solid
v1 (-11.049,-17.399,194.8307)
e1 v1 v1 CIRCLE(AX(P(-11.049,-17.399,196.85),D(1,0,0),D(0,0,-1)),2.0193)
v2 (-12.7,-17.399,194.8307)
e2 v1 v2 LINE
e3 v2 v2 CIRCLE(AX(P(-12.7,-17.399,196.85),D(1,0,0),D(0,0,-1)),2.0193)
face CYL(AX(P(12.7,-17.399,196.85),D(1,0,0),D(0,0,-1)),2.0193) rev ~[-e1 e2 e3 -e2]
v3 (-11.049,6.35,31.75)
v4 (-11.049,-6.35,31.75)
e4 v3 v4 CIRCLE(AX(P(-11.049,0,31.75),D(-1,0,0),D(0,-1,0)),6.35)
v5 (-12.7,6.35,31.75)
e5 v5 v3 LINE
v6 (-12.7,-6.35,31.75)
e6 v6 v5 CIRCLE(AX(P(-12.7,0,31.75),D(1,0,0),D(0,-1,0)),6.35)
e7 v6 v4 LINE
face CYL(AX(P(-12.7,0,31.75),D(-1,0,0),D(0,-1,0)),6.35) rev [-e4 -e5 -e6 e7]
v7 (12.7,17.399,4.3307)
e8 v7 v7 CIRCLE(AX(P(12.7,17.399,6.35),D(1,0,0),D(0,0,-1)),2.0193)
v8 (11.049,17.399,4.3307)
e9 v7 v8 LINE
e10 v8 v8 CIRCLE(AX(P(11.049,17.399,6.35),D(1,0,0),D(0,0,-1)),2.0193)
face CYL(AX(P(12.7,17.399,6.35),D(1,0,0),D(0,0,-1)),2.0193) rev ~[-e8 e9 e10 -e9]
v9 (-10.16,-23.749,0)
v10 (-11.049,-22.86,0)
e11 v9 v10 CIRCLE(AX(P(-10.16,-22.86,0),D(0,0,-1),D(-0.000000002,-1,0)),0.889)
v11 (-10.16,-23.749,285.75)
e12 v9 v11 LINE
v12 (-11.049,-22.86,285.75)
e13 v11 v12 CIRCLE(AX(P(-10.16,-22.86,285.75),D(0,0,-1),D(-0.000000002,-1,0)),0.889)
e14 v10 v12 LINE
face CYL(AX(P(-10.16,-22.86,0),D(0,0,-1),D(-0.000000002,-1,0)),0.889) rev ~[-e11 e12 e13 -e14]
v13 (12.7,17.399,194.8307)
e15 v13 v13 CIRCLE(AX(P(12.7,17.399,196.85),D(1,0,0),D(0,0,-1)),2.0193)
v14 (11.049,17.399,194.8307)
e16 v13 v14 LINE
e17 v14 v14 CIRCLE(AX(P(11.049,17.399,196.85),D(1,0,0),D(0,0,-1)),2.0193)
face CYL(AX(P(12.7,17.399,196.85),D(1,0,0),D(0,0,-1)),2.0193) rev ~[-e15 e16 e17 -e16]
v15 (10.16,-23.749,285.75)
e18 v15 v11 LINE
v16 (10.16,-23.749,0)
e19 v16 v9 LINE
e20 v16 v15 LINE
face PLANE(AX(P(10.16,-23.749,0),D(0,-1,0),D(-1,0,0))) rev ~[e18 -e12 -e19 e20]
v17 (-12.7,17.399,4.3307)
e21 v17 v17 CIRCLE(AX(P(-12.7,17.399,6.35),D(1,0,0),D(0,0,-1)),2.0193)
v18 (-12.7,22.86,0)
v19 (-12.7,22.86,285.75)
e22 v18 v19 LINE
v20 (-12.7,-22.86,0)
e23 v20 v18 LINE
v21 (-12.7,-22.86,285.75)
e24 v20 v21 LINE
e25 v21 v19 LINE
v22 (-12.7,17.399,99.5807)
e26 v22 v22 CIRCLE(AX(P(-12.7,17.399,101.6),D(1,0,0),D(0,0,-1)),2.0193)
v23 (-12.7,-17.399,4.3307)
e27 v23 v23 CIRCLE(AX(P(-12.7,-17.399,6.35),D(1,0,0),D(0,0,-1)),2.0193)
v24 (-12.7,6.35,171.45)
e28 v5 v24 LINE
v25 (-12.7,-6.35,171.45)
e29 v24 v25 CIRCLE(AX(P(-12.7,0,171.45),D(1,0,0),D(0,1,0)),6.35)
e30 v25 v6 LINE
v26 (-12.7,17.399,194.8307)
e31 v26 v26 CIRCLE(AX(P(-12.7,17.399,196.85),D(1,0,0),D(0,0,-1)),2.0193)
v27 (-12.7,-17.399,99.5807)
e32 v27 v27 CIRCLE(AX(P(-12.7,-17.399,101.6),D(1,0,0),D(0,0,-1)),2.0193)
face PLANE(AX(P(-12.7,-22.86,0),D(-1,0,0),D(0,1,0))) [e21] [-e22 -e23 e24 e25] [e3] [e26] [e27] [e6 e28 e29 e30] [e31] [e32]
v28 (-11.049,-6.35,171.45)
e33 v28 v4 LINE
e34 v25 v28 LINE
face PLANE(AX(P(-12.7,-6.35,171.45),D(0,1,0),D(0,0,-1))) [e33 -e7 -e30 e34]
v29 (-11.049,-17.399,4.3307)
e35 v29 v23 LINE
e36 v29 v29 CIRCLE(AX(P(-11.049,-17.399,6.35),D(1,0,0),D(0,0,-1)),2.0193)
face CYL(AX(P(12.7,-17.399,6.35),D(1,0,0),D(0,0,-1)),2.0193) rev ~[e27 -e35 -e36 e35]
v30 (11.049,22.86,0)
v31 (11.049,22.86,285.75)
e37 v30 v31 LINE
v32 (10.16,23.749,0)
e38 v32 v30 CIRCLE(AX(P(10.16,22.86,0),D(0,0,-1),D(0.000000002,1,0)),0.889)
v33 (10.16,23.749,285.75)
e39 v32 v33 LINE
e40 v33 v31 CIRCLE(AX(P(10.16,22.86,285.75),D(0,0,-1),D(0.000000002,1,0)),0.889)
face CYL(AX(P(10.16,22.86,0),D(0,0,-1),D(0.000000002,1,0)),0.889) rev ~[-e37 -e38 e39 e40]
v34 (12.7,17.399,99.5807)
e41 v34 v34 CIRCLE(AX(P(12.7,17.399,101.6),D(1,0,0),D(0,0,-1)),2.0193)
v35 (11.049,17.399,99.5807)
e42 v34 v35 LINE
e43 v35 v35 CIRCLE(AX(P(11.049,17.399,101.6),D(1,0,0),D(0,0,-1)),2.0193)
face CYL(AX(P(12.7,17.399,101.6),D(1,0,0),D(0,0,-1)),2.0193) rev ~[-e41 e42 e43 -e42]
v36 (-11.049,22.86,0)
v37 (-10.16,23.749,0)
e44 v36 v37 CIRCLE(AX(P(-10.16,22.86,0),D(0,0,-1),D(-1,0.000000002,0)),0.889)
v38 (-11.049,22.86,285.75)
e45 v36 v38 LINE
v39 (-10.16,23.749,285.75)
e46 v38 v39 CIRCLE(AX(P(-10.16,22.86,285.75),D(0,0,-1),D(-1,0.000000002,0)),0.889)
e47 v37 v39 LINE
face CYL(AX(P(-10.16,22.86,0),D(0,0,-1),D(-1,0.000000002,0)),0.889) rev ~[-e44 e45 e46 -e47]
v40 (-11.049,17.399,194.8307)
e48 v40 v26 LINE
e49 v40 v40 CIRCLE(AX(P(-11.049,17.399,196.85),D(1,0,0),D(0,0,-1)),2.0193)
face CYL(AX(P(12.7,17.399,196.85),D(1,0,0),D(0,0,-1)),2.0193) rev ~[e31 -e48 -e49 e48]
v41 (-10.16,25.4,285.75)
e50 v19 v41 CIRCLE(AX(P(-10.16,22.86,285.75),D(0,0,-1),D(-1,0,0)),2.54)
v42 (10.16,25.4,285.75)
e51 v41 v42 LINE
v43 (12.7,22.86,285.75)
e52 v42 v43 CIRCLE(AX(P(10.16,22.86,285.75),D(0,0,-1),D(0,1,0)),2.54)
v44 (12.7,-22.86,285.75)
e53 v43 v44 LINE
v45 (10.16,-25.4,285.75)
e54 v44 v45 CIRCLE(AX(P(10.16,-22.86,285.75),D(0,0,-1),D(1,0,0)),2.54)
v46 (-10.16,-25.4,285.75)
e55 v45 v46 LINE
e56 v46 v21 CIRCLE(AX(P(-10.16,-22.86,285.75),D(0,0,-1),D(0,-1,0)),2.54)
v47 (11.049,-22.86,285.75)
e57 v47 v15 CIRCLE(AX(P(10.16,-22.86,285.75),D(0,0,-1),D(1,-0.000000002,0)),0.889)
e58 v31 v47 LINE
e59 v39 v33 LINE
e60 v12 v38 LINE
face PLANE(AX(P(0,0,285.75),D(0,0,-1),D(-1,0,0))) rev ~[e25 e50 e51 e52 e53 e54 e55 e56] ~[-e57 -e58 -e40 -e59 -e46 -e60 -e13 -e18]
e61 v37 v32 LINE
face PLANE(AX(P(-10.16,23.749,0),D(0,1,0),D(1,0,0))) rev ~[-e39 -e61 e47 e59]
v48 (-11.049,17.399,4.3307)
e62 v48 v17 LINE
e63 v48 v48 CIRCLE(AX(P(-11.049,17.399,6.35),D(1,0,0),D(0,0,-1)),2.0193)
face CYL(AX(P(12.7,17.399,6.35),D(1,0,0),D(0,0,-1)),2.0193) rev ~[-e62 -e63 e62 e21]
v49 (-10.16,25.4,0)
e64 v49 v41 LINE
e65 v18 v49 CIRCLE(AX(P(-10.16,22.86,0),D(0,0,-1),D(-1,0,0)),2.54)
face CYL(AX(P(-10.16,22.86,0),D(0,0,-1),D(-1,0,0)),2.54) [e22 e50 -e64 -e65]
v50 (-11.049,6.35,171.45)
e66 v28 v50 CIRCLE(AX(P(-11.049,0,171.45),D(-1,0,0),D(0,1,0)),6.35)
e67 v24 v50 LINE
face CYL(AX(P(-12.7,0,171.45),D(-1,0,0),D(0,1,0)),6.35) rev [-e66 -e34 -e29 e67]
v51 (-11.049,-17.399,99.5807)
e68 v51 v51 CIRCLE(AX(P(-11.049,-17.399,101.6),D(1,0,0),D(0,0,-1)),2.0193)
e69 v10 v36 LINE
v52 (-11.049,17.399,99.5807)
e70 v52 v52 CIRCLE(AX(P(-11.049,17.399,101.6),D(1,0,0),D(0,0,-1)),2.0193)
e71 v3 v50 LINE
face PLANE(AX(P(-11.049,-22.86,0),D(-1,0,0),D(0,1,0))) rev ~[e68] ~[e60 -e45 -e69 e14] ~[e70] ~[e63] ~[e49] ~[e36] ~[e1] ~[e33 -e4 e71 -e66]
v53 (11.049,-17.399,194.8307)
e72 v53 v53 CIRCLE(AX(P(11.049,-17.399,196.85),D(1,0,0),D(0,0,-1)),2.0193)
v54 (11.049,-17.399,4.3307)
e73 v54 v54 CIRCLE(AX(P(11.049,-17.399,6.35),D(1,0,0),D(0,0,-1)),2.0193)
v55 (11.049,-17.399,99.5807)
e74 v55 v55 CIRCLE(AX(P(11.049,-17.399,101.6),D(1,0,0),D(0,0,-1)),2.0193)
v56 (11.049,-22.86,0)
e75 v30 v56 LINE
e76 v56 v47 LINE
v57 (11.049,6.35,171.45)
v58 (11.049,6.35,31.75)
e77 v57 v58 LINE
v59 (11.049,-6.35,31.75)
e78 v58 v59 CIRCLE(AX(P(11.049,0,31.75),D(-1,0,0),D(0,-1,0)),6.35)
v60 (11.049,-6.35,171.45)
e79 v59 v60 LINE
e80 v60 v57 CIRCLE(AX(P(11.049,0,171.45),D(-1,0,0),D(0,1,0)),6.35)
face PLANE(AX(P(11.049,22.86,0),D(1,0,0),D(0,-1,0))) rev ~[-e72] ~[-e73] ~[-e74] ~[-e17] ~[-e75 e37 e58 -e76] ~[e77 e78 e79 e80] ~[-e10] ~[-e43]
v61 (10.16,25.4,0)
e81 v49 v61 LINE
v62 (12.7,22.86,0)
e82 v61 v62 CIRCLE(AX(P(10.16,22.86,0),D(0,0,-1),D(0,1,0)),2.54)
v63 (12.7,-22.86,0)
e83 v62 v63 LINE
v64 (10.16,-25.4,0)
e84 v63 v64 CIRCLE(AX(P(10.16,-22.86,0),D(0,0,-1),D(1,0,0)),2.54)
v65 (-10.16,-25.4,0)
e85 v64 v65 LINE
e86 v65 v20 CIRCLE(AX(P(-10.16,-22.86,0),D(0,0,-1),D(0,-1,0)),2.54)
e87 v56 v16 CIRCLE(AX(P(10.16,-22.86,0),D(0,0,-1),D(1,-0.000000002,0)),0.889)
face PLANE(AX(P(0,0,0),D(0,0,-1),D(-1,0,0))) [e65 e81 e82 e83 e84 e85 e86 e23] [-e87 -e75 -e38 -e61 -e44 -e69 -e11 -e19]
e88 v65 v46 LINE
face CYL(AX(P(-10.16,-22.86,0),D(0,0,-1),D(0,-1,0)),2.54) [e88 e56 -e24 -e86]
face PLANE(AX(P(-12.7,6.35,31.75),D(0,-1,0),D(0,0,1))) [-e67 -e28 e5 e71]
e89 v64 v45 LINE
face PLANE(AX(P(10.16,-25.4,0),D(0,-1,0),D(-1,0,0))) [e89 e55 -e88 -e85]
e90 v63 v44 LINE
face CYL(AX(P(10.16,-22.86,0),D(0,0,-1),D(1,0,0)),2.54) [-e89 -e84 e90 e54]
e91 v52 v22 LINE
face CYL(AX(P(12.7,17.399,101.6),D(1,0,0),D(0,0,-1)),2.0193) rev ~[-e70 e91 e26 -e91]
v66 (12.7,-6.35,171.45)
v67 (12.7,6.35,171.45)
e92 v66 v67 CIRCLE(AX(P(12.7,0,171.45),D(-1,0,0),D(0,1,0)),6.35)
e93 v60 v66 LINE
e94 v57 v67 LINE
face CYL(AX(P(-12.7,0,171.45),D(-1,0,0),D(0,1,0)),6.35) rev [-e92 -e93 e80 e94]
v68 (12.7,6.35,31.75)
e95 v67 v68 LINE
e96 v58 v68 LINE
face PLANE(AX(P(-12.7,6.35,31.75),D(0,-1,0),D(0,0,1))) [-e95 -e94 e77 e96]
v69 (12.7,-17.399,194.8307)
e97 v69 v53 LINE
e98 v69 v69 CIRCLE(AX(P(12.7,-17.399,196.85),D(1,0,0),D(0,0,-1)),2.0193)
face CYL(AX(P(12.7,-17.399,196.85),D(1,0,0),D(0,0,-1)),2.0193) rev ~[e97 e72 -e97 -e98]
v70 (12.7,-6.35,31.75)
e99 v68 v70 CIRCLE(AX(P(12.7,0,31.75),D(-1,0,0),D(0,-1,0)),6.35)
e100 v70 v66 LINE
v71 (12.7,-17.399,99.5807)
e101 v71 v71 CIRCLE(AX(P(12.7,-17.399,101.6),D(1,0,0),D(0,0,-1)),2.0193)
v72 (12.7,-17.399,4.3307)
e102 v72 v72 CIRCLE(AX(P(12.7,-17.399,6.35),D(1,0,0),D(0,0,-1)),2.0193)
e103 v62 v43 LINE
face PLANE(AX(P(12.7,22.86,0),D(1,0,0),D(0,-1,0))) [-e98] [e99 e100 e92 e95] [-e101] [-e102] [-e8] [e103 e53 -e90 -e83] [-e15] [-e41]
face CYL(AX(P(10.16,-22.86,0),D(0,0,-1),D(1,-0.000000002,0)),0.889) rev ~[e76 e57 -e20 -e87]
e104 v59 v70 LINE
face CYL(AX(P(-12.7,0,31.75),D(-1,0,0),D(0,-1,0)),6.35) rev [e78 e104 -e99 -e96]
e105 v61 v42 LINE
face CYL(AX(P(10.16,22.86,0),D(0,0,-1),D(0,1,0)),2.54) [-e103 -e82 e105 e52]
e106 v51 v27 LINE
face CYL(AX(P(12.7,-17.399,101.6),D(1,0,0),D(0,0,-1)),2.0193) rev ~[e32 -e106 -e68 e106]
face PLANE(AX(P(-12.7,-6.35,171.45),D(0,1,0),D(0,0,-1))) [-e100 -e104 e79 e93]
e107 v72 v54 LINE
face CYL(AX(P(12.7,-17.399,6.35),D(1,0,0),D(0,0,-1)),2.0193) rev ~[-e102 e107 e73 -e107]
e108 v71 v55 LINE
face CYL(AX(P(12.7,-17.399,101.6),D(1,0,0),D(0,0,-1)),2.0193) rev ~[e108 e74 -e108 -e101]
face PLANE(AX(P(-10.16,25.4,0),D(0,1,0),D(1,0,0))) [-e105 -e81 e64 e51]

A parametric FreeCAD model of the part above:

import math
import FreeCAD as App
import Part
import Sketcher

V = App.Vector
Q = App.Units.Quantity

doc = App.newDocument("Part")
body = doc.addObject("PartDesign::Body", "Body")

# Sketch on XY plane
sketch1 = body.newObject("Sketcher::SketchObject", "Sketch")
sketch1.AttachmentSupport = (doc.getObject("XY_Plane"), [""])
sketch1.MapMode = "FlatFace"
sketch1.addGeometry([
    Part.LineSegment(V(10.2, 25.4, 0), V(-10.2, 25.4, 0)),  # 0
    Part.ArcOfCircle(Part.Circle(V(-10.2, 22.9, 0), V(0, 0, 1), 2.5), math.radians(90), math.radians(180)),  # 1
    Part.LineSegment(V(-12.7, 22.9, 0), V(-12.7, -22.9, 0)),  # 2
    Part.ArcOfCircle(Part.Circle(V(-10.2, -22.9, 0), V(0, 0, 1), 2.5), math.radians(-180), math.radians(-90)),  # 3
    Part.LineSegment(V(-10.2, -25.4, 0), V(10.2, -25.4, 0)),  # 4
    Part.ArcOfCircle(Part.Circle(V(10.2, -22.9, 0), V(0, 0, 1), 2.5), math.radians(-90), math.radians(0)),  # 5
    Part.LineSegment(V(12.7, -22.9, 0), V(12.7, 22.9, 0)),  # 6
    Part.ArcOfCircle(Part.Circle(V(10.2, 22.9, 0), V(0, 0, 1), 2.5), math.radians(0), math.radians(90)),  # 7
    Part.LineSegment(V(-10.2, 23.7, 0), V(10.2, 23.7, 0)),  # 8
    Part.ArcOfCircle(Part.Circle(V(10.2, 22.9, 0), V(0, 0, 1), 0.9), math.radians(0), math.radians(90)),  # 9
    Part.LineSegment(V(11, 22.9, 0), V(11, -22.9, 0)),  # 10
    Part.ArcOfCircle(Part.Circle(V(10.2, -22.9, 0), V(0, 0, 1), 0.9), math.radians(-90), math.radians(0)),  # 11
    Part.LineSegment(V(10.2, -23.7, 0), V(-10.2, -23.7, 0)),  # 12
    Part.ArcOfCircle(Part.Circle(V(-10.2, -22.9, 0), V(0, 0, 1), 0.9), math.radians(-180), math.radians(-90)),  # 13
    Part.LineSegment(V(-11, -22.9, 0), V(-11, 22.9, 0)),  # 14
    Part.ArcOfCircle(Part.Circle(V(-10.2, 22.9, 0), V(0, 0, 1), 0.9), math.radians(90), math.radians(180)),  # 15
], False)
sketch1.addConstraint([
    Sketcher.Constraint("Tangent", 0, 2, 1, 1),
    Sketcher.Constraint("Tangent", 1, 2, 2, 1),
    Sketcher.Constraint("Tangent", 2, 2, 3, 1),
    Sketcher.Constraint("Tangent", 3, 2, 4, 1),
    Sketcher.Constraint("Tangent", 4, 2, 5, 1),
    Sketcher.Constraint("Tangent", 5, 2, 6, 1),
    Sketcher.Constraint("Tangent", 6, 2, 7, 1),
    Sketcher.Constraint("Tangent", 7, 2, 0, 1),
    Sketcher.Constraint("Tangent", 8, 2, 9, 2),
    Sketcher.Constraint("Tangent", 9, 1, 10, 1),
    Sketcher.Constraint("Tangent", 10, 2, 11, 2),
    Sketcher.Constraint("Tangent", 11, 1, 12, 1),
    Sketcher.Constraint("Tangent", 12, 2, 13, 2),
    Sketcher.Constraint("Tangent", 13, 1, 14, 1),
    Sketcher.Constraint("Tangent", 14, 2, 15, 2),
    Sketcher.Constraint("Tangent", 15, 1, 8, 1),
    Sketcher.Constraint("Horizontal", 0),
    Sketcher.Constraint("Vertical", 2),
    Sketcher.Constraint("Horizontal", 4),
    Sketcher.Constraint("Vertical", 6),
    Sketcher.Constraint("Horizontal", 8),
    Sketcher.Constraint("Vertical", 10),
    Sketcher.Constraint("Horizontal", 12),
    Sketcher.Constraint("Vertical", 14),
    Sketcher.Constraint("Coincident", 9, 3, 7, 3),
    Sketcher.Constraint("Coincident", 11, 3, 5, 3),
    Sketcher.Constraint("Coincident", 13, 3, 3, 3),
    Sketcher.Constraint("Equal", 1, 3),
    Sketcher.Constraint("Equal", 3, 5),
    Sketcher.Constraint("Equal", 5, 7),
    Sketcher.Constraint("Equal", 13, 15),
    Sketcher.Constraint("Symmetric", 1, 3, 5, 3, -1, 1),
    Sketcher.Constraint("Radius", 1, Q("0.1 in")),
    Sketcher.Constraint("DistanceX", 0, 2, 0, 1, Q("0.8 in")),
    Sketcher.Constraint("DistanceY", 2, 2, 2, 1, Q("1.8 in")),
    Sketcher.Constraint("Radius", 9, Q("0.035 in")),
])
pad1 = body.newObject("PartDesign::Pad", "Pad")
pad1.Profile = sketch1
pad1.Length = Q("11.25 in")

# Sketch on YZ plane
sketch2 = body.newObject("Sketcher::SketchObject", "Sketch001")
sketch2.AttachmentSupport = (doc.getObject("YZ_Plane"), [""])
sketch2.MapMode = "FlatFace"
sketch2.AttachmentOffset = App.Placement(V(0, 0, -0.5 * 25.4), App.Rotation())
sketch2.addGeometry([
    Part.LineSegment(V(6, 171, 0), V(6, 32, 0)),
    Part.ArcOfCircle(Part.Circle(V(0, 32, 0), V(0, 0, 1), 6), math.radians(180), math.radians(360)),
    Part.LineSegment(V(-6, 32, 0), V(-6, 171, 0)),
    Part.ArcOfCircle(Part.Circle(V(0, 171, 0), V(0, 0, 1), 6), math.radians(0), math.radians(180)),
], False)
sketch2.addConstraint([
    Sketcher.Constraint("Tangent", 0, 2, 1, 2),
    Sketcher.Constraint("Tangent", 1, 1, 2, 1),
    Sketcher.Constraint("Tangent", 2, 2, 3, 2),
    Sketcher.Constraint("Tangent", 3, 1, 0, 1),
    Sketcher.Constraint("Vertical", 0),
    Sketcher.Constraint("Vertical", 2),
    Sketcher.Constraint("PointOnObject", 1, 3, -2),
    Sketcher.Constraint("Radius", 1, Q("0.25 in")),
    Sketcher.Constraint("DistanceY", 0, 2, 0, 1, Q("5.5 in")),
    Sketcher.Constraint("DistanceY", -1, 1, 1, 3, Q("1.25 in")),
])
pocket1 = body.newObject("PartDesign::Pocket", "Pocket")
pocket1.Profile = sketch2
pocket1.Type = "ThroughAll"
pocket1.Reversed = True

# Sketch on YZ plane
sketch3 = body.newObject("Sketcher::SketchObject", "Sketch002")
sketch3.AttachmentSupport = (doc.getObject("YZ_Plane"), [""])
sketch3.MapMode = "FlatFace"
sketch3.AttachmentOffset = App.Placement(V(0, 0, 0.5 * 25.4), App.Rotation())
sketch3.addGeometry([
    Part.Circle(V(17.4, 196.8, 0), V(0, 0, 1), 2),  # 0
    Part.Circle(V(-17.4, 196.8, 0), V(0, 0, 1), 2),  # 1
    Part.Circle(V(17.4, 101.6, 0), V(0, 0, 1), 2),  # 2
    Part.Circle(V(-17.4, 101.6, 0), V(0, 0, 1), 2),  # 3
    Part.Circle(V(17.4, 6.3, 0), V(0, 0, 1), 2),  # 4
    Part.Circle(V(-17.4, 6.3, 0), V(0, 0, 1), 2),  # 5
], False)
sketch3.addConstraint([
    Sketcher.Constraint("Equal", 0, 1),
    Sketcher.Constraint("Equal", 1, 2),
    Sketcher.Constraint("Equal", 2, 3),
    Sketcher.Constraint("Equal", 3, 4),
    Sketcher.Constraint("Equal", 4, 5),
    Sketcher.Constraint("Symmetric", 0, 3, 1, 3, -2),
    Sketcher.Constraint("Symmetric", 2, 3, 3, 3, -2),
    Sketcher.Constraint("Symmetric", 4, 3, 5, 3, -2),
    Sketcher.Constraint("Vertical", 0, 3, 2, 3),
    Sketcher.Constraint("Vertical", 2, 3, 4, 3),
    Sketcher.Constraint("Diameter", 0, Q("0.159 in")),
    Sketcher.Constraint("DistanceY", -1, 1, 2, 3, Q("4 in")),
    Sketcher.Constraint("DistanceY", 4, 3, 0, 3, Q("7.5 in")),
    Sketcher.Constraint("DistanceY", -1, 1, 0, 3, Q("7.75 in")),
    Sketcher.Constraint("DistanceX", 1, 3, 0, 3, Q("1.37 in")),
])
pocket2 = body.newObject("PartDesign::Pocket", "Pocket001")
pocket2.Profile = sketch3
pocket2.Type = "ThroughAll"

doc.recompute()
